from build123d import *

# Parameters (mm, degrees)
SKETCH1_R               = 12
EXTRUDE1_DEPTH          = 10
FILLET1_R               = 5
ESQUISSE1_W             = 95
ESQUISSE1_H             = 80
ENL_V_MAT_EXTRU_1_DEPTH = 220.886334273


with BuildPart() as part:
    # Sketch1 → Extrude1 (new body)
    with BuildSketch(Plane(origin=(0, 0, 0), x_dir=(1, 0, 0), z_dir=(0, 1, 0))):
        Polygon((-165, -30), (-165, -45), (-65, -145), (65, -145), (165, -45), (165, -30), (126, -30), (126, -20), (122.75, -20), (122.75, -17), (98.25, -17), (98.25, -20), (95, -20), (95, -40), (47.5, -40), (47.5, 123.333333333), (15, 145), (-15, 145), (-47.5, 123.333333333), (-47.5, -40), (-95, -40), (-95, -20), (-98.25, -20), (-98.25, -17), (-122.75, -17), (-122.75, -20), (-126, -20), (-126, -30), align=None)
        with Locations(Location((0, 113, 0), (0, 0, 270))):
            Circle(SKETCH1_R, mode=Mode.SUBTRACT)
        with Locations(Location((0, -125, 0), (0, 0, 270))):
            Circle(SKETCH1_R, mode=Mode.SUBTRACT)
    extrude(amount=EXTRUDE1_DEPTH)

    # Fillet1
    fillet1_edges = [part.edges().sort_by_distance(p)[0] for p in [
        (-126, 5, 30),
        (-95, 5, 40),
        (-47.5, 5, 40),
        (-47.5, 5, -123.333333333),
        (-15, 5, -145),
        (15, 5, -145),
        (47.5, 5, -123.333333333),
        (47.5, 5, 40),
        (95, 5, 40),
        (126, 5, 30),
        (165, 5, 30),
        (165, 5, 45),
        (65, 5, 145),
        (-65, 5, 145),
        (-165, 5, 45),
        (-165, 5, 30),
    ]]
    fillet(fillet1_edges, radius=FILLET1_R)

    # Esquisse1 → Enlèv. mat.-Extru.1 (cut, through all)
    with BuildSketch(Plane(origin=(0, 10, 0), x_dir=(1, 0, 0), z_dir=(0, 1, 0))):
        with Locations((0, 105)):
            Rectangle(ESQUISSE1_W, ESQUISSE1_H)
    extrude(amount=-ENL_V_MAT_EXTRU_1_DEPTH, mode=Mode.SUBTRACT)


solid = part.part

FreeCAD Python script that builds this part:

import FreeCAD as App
import Part
import Sketcher
Q = App.Units.Quantity


def edges_at(feature, points):
    """Names of the edges that pass closest to the given points."""
    edges = feature.Shape.Edges
    near = lambda p: min(range(len(edges)), key=lambda i: edges[i].distToShape(Part.Vertex(*p))[0])
    return sorted({f"Edge{near(p) + 1}" for p in points})


def add_polygon(sketch, points):
    """Adds a closed chain of lines whose ends are joined by coincident constraints."""
    first, n = sketch.GeometryCount, len(points)
    for a, b in zip(points, points[1:] + points[:1]):
        sketch.addGeometry(Part.LineSegment(App.Vector(*a, 0), App.Vector(*b, 0)), False)
    for i in range(n):
        sketch.addConstraint(Sketcher.Constraint("Coincident", first + i, 2, first + (i + 1) % n, 1))

doc = App.newDocument("Part")
body = doc.addObject("PartDesign::Body", "Body")

# Sketch on XZ plane
sketch1 = body.newObject("Sketcher::SketchObject", "Sketch")
sketch1.AttachmentSupport = (doc.getObject("XZ_Plane"), [""])
sketch1.MapMode = "FlatFace"
add_polygon(sketch1, [(-165, 30), (-165, 45), (-65, 145), (65, 145), (165, 45), (165, 30), (126, 30), (126, 20), (122.8, 20), (122.8, 17), (98.2, 17), (98.2, 20), (95, 20), (95, 40), (47.5, 40), (47.5, -123.3), (15, -145), (-15, -145), (-47.5, -123.3), (-47.5, 40), (-95, 40), (-95, 20), (-98.2, 20), (-98.2, 17), (-122.8, 17), (-122.8, 20), (-126, 20), (-126, 30)])  # lines 0-27
sketch1.addGeometry(Part.Circle(App.Vector(0, 125, 0), App.Vector(0, 0, 1), 12), False)  # 28
sketch1.addGeometry(Part.Circle(App.Vector(0, -113, 0), App.Vector(0, 0, 1), 12), False)  # 29
sketch1.addConstraint(Sketcher.Constraint("Vertical", 0))
sketch1.addConstraint(Sketcher.Constraint("Horizontal", 2))
sketch1.addConstraint(Sketcher.Constraint("Vertical", 4))
sketch1.addConstraint(Sketcher.Constraint("Horizontal", 5))
sketch1.addConstraint(Sketcher.Constraint("Vertical", 6))
sketch1.addConstraint(Sketcher.Constraint("Horizontal", 7))
sketch1.addConstraint(Sketcher.Constraint("Vertical", 8))
sketch1.addConstraint(Sketcher.Constraint("Horizontal", 9))
sketch1.addConstraint(Sketcher.Constraint("Vertical", 10))
sketch1.addConstraint(Sketcher.Constraint("Horizontal", 11))
sketch1.addConstraint(Sketcher.Constraint("Vertical", 12))
sketch1.addConstraint(Sketcher.Constraint("Horizontal", 13))
sketch1.addConstraint(Sketcher.Constraint("Vertical", 14))
sketch1.addConstraint(Sketcher.Constraint("Horizontal", 16))
sketch1.addConstraint(Sketcher.Constraint("Vertical", 18))
sketch1.addConstraint(Sketcher.Constraint("Horizontal", 19))
sketch1.addConstraint(Sketcher.Constraint("Vertical", 20))
sketch1.addConstraint(Sketcher.Constraint("Horizontal", 21))
sketch1.addConstraint(Sketcher.Constraint("Vertical", 22))
sketch1.addConstraint(Sketcher.Constraint("Horizontal", 23))
sketch1.addConstraint(Sketcher.Constraint("Vertical", 24))
sketch1.addConstraint(Sketcher.Constraint("Horizontal", 25))
sketch1.addConstraint(Sketcher.Constraint("Vertical", 26))
sketch1.addConstraint(Sketcher.Constraint("Horizontal", 27))
sketch1.addConstraint(Sketcher.Constraint("Equal", 28, 29))
sketch1.addConstraint(Sketcher.Constraint("Symmetric", 0, 2, 3, 2, -2))
sketch1.addConstraint(Sketcher.Constraint("Symmetric", 14, 2, 17, 2, -2))
sketch1.addConstraint(Sketcher.Constraint("Symmetric", 12, 2, 19, 2, -2))
sketch1.addConstraint(Sketcher.Constraint("Symmetric", 10, 2, 21, 2, -2))
sketch1.addConstraint(Sketcher.Constraint("Symmetric", 8, 2, 23, 2, -2))
sketch1.addConstraint(Sketcher.Constraint("Symmetric", 6, 2, 25, 2, -2))
sketch1.addConstraint(Sketcher.Constraint("PointOnObject", 28, 3, -2))
sketch1.addConstraint(Sketcher.Constraint("PointOnObject", 29, 3, -2))
sketch1.addConstraint(Sketcher.Constraint("Perpendicular", 1, 3))
sketch1.addConstraint(Sketcher.Constraint("Horizontal", 7, 2, 10, 2))
sketch1.addConstraint(Sketcher.Constraint("Horizontal", 5, 2, 26, 2))
sketch1.addConstraint(Sketcher.Constraint("Equal", 7, 11))
sketch1.addConstraint(Sketcher.Constraint("Equal", 1, 3))
sketch1.addConstraint(Sketcher.Constraint("Equal", 15, 17))
sketch1.addConstraint(Sketcher.Constraint("Diameter", 28, Q("24 mm")))
sketch1.addConstraint(Sketcher.Constraint("DistanceX", 2, 1, 2, 2, Q("130 mm")))
sketch1.addConstraint(Sketcher.Constraint("DistanceX", 5, 2, 5, 1, Q("39 mm")))
sketch1.addConstraint(Sketcher.Constraint("DistanceX", 16, 2, 16, 1, Q("30 mm")))
sketch1.addConstraint(Sketcher.Constraint("DistanceY", 0, 1, 0, 2, Q("15 mm")))
sketch1.addConstraint(Sketcher.Constraint("DistanceY", 6, 2, 6, 1, Q("10 mm")))
sketch1.addConstraint(Sketcher.Constraint("DistanceY", 8, 2, 8, 1, Q("3 mm")))
sketch1.addConstraint(Sketcher.Constraint("DistanceY", 12, 1, 12, 2, Q("20 mm")))
sketch1.addConstraint(Sketcher.Constraint("DistanceX", 9, 2, 9, 1, Q("24.5 mm")))
sketch1.addConstraint(Sketcher.Constraint("DistanceX", 13, 2, 13, 1, Q("47.5 mm")))
sketch1.addConstraint(Sketcher.Constraint("DistanceY", -1, 1, 28, 3, Q("125 mm")))
sketch1.addConstraint(Sketcher.Constraint("DistanceY", 29, 3, -1, 1, Q("113 mm")))
sketch1.addConstraint(Sketcher.Constraint("DistanceX", 0, 2, -1, 1, Q("165 mm")))
sketch1.addConstraint(Sketcher.Constraint("DistanceY", -1, 1, 0, 2, Q("45 mm")))
sketch1.addConstraint(Sketcher.Constraint("DistanceX", -1, 1, 11, 2, Q("95 mm")))
sketch1.addConstraint(Sketcher.Constraint("DistanceY", 15, 2, -1, 1, Q("145 mm")))
sketch1.addConstraint(Sketcher.Constraint("Distance", 15, Q("39.060139 mm")))
pad1 = body.newObject("PartDesign::Pad", "Pad")
pad1.Profile = sketch1
pad1.Length = 10
pad1.Reversed = True
doc.recompute()

fillet = body.newObject("PartDesign::Fillet", "Fillet")
fillet.Base = (pad1, edges_at(pad1, [
    (-126, 5, 30),
    (-95, 5, 40),
    (-47.5, 5, 40),
    (-47.5, 5, -123.333),
    (-15, 5, -145),
    (15, 5, -145),
    (47.5, 5, -123.333),
    (47.5, 5, 40),
    (95, 5, 40),
    (126, 5, 30),
    (165, 5, 30),
    (165, 5, 45),
    (65, 5, 145),
    (-65, 5, 145),
    (-165, 5, 45),
    (-165, 5, 30),
]))
fillet.Radius = 5

# Sketch on XZ plane
sketch2 = body.newObject("Sketcher::SketchObject", "Sketch001")
sketch2.AttachmentSupport = (doc.getObject("XZ_Plane"), [""])
sketch2.MapMode = "FlatFace"
sketch2.AttachmentOffset = App.Placement(App.Vector(0, 0, -10), App.Rotation())
add_polygon(sketch2, [(-48, -145), (-48, -65), (48, -65), (48, -145)])  # lines 0-3
sketch2.addConstraint(Sketcher.Constraint("Vertical", 0))
sketch2.addConstraint(Sketcher.Constraint("Horizontal", 1))
sketch2.addConstraint(Sketcher.Constraint("Vertical", 2))
sketch2.addConstraint(Sketcher.Constraint("Horizontal", 3))
sketch2.addConstraint(Sketcher.Constraint("DistanceX", 1, 1, 1, 2, Q("95 mm")))
sketch2.addConstraint(Sketcher.Constraint("DistanceY", 0, 1, 0, 2, Q("80 mm")))
sketch2.addConstraint(Sketcher.Constraint("DistanceY", 0, 2, -1, 1, Q("65 mm")))
sketch2.addConstraint(Sketcher.Constraint("DistanceX", 0, 2, -1, 1, Q("47.5 mm")))
pocket1 = body.newObject("PartDesign::Pocket", "Pocket")
pocket1.Profile = sketch2
pocket1.Type = "ThroughAll"
pocket1.Reversed = True

doc.recompute()
